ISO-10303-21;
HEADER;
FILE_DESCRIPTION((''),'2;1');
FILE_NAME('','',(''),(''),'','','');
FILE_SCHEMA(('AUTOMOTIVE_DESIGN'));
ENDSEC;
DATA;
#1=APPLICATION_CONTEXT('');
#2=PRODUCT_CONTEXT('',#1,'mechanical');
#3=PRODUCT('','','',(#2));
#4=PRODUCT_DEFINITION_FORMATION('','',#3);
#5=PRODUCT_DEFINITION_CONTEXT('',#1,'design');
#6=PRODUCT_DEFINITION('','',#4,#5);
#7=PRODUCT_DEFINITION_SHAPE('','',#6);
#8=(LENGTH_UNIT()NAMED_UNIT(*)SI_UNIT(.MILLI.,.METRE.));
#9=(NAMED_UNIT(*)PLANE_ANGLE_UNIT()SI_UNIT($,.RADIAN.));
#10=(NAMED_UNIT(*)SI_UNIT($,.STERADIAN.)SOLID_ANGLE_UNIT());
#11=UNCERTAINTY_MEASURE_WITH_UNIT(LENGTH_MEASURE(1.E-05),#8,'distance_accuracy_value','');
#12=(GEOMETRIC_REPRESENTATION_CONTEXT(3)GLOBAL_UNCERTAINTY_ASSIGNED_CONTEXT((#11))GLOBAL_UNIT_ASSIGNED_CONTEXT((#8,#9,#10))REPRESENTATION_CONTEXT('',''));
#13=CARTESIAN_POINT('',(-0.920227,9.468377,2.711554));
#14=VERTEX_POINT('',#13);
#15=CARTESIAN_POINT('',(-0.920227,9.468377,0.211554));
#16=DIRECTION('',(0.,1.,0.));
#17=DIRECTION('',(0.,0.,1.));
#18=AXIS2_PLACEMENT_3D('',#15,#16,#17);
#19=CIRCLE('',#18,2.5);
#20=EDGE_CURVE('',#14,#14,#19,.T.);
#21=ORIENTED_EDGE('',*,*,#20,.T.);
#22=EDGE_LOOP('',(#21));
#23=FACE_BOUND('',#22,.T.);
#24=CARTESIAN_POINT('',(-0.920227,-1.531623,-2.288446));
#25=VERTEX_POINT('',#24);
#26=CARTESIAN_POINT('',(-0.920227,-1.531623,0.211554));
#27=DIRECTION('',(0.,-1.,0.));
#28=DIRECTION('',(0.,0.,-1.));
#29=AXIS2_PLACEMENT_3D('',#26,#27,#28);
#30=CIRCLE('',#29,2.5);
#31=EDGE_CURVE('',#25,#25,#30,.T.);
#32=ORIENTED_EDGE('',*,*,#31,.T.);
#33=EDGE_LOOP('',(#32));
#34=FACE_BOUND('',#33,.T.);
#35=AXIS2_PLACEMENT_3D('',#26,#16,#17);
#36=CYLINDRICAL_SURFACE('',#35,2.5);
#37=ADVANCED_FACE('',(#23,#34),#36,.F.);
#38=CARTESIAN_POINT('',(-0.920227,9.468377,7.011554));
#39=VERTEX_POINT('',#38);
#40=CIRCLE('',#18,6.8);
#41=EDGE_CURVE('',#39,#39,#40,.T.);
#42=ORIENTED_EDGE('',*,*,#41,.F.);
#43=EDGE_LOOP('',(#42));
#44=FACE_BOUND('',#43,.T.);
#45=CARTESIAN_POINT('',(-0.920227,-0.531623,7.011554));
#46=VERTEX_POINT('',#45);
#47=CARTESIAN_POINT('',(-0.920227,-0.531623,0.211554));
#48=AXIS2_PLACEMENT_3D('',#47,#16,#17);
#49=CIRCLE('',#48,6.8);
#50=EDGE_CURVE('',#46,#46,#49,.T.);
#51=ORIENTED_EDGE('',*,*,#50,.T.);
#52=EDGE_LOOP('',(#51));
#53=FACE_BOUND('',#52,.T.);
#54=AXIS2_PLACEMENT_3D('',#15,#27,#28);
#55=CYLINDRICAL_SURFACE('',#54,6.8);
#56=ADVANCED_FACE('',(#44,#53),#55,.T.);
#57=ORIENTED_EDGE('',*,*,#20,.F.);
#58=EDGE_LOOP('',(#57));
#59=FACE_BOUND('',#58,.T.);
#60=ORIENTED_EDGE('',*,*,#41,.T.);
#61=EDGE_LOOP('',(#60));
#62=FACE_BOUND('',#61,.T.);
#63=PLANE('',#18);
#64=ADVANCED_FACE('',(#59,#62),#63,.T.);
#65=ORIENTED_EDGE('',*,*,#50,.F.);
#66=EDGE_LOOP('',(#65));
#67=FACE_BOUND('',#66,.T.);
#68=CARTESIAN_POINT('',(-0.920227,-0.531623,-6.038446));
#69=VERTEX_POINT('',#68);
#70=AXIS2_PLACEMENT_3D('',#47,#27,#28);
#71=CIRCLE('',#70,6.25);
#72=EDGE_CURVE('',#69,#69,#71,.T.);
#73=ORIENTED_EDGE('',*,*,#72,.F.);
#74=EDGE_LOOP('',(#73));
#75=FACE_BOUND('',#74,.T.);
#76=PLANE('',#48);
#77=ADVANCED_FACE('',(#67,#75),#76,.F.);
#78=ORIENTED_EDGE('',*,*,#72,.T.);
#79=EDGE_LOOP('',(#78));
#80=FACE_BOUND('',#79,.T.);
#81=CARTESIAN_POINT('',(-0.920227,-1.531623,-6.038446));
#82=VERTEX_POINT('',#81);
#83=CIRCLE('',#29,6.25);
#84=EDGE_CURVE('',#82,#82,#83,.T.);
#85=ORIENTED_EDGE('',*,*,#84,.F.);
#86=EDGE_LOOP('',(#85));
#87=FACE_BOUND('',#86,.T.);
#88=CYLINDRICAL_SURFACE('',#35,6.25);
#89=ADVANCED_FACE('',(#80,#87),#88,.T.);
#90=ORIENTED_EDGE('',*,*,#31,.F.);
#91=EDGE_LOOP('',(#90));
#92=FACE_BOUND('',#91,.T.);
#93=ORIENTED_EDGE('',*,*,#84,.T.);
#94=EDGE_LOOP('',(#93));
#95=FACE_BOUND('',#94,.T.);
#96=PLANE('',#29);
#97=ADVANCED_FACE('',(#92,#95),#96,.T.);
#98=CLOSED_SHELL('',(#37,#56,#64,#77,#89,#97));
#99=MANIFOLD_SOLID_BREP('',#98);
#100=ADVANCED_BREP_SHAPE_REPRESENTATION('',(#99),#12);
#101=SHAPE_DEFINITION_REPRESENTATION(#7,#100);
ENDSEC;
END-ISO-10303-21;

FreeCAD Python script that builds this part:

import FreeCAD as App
import Part
import Sketcher
from FreeCAD import Vector

doc = App.newDocument("Part")
body = doc.addObject("PartDesign::Body", "Body")

# Sketch on XZ plane
sketch1 = doc.addObject("Sketcher::SketchObject", "Sketch")
body.addObject(sketch1)
sketch1.AttachmentSupport = (doc.XZ_Plane, [""])
sketch1.MapMode = "FlatFace"
sketch1.AttachmentOffset = App.Placement(Vector(0, 0, 0.531623), App.Rotation())
sketch1.addGeometry(Part.Circle(Vector(-0.9, 0.2, 0), Vector(0, 0, 1), 6.2), False)
sketch1.addGeometry(Part.Circle(Vector(-0.9, 0.2, 0), Vector(0, 0, 1), 2.5), False)
sketch1.addConstraint(Sketcher.Constraint("Coincident", 1, 3, 0, 3))
sketch1.addConstraint(Sketcher.Constraint("Diameter", 1, 5.0))
sketch1.addConstraint(Sketcher.Constraint("Diameter", 0, 12.5))
sketch1.addConstraint(Sketcher.Constraint("DistanceX", 0, 3, -1, 1, 0.920227))
sketch1.addConstraint(Sketcher.Constraint("DistanceY", -1, 1, 0, 3, 0.211554))
pad1 = doc.addObject("PartDesign::Pad", "Pad")
body.addObject(pad1)
pad1.Profile = sketch1
pad1.Length = 1

# Sketch on XZ plane
sketch2 = doc.addObject("Sketcher::SketchObject", "Sketch001")
body.addObject(sketch2)
sketch2.AttachmentSupport = (doc.XZ_Plane, [""])
sketch2.MapMode = "FlatFace"
sketch2.AttachmentOffset = App.Placement(Vector(0, 0, -9.468377), App.Rotation())
sketch2.addGeometry(Part.Circle(Vector(-0.9, 0.2, 0), Vector(0, 0, 1), 6.8), False)
sketch2.addGeometry(Part.Circle(Vector(-0.9, 0.2, 0), Vector(0, 0, 1), 2.5), False)
sketch2.addConstraint(Sketcher.Constraint("Coincident", 1, 3, 0, 3))
sketch2.addConstraint(Sketcher.Constraint("Diameter", 1, 5.0))
sketch2.addConstraint(Sketcher.Constraint("Diameter", 0, 13.6))
sketch2.addConstraint(Sketcher.Constraint("DistanceX", 0, 3, -1, 1, 0.920227))
sketch2.addConstraint(Sketcher.Constraint("DistanceY", -1, 1, 0, 3, 0.211554))
pad2 = doc.addObject("PartDesign::Pad", "Pad001")
body.addObject(pad2)
pad2.Profile = sketch2
pad2.Length = 10

doc.recompute()
